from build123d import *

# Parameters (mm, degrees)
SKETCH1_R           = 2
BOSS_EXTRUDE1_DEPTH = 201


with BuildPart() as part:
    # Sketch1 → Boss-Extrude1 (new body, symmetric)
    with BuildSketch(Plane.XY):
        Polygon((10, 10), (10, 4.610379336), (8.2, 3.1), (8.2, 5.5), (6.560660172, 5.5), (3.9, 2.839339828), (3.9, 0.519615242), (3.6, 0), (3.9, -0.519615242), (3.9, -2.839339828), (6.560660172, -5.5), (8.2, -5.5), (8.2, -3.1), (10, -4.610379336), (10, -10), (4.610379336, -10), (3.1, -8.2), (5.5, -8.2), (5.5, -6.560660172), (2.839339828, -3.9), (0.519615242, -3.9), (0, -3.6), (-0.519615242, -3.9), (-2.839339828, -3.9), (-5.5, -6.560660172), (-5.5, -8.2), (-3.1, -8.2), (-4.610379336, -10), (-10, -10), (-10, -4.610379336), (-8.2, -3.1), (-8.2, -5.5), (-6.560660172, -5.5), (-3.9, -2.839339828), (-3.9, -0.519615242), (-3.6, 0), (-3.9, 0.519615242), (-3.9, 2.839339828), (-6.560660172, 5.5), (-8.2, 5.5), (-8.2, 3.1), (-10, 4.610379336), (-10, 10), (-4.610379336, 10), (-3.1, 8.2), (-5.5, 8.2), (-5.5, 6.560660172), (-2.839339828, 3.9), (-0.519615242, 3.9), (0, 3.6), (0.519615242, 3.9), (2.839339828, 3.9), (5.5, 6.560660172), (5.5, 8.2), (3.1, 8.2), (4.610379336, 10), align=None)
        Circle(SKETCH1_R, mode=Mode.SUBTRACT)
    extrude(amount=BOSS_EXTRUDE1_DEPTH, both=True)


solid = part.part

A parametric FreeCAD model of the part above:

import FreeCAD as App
import Part
import Sketcher
Q = App.Units.Quantity

doc = App.newDocument("Part")
body = doc.addObject("PartDesign::Body", "Body")

sketch1 = body.newObject("Sketcher::SketchObject", "Sketch")
sketch1.AttachmentSupport = (doc.getObject("XY_Plane"), [""])
sketch1.MapMode = "FlatFace"
sketch1.addGeometry([
    Part.LineSegment(App.Vector(10, 4.6, 0), App.Vector(10, 10, 0)),
    Part.LineSegment(App.Vector(10, 10, 0), App.Vector(4.6, 10, 0)),
    Part.LineSegment(App.Vector(4.6, 10, 0), App.Vector(3.1, 8.2, 0)),
    Part.LineSegment(App.Vector(3.1, 8.2, 0), App.Vector(5.5, 8.2, 0)),
    Part.LineSegment(App.Vector(5.5, 8.2, 0), App.Vector(5.5, 6.6, 0)),
    Part.LineSegment(App.Vector(5.5, 6.6, 0), App.Vector(2.8, 3.9, 0)),
    Part.LineSegment(App.Vector(2.8, 3.9, 0), App.Vector(0.5, 3.9, 0)),
    Part.LineSegment(App.Vector(0.5, 3.9, 0), App.Vector(0, 3.6, 0)),
    Part.LineSegment(App.Vector(0, 3.6, 0), App.Vector(-0.5, 3.9, 0)),
    Part.LineSegment(App.Vector(-0.5, 3.9, 0), App.Vector(-2.8, 3.9, 0)),
    Part.LineSegment(App.Vector(-2.8, 3.9, 0), App.Vector(-5.5, 6.6, 0)),
    Part.LineSegment(App.Vector(-5.5, 6.6, 0), App.Vector(-5.5, 8.2, 0)),
    Part.LineSegment(App.Vector(-5.5, 8.2, 0), App.Vector(-3.1, 8.2, 0)),
    Part.LineSegment(App.Vector(-3.1, 8.2, 0), App.Vector(-4.6, 10, 0)),
    Part.LineSegment(App.Vector(-4.6, 10, 0), App.Vector(-10, 10, 0)),
    Part.LineSegment(App.Vector(-10, 10, 0), App.Vector(-10, 4.6, 0)),
    Part.LineSegment(App.Vector(-10, 4.6, 0), App.Vector(-8.2, 3.1, 0)),
    Part.LineSegment(App.Vector(-8.2, 3.1, 0), App.Vector(-8.2, 5.5, 0)),
    Part.LineSegment(App.Vector(-8.2, 5.5, 0), App.Vector(-6.6, 5.5, 0)),
    Part.LineSegment(App.Vector(-6.6, 5.5, 0), App.Vector(-3.9, 2.8, 0)),
    Part.LineSegment(App.Vector(-3.9, 2.8, 0), App.Vector(-3.9, 0.5, 0)),
    Part.LineSegment(App.Vector(-3.9, 0.5, 0), App.Vector(-3.6, 0, 0)),
    Part.LineSegment(App.Vector(-3.6, 0, 0), App.Vector(-3.9, -0.5, 0)),
    Part.LineSegment(App.Vector(-3.9, -0.5, 0), App.Vector(-3.9, -2.8, 0)),
    Part.LineSegment(App.Vector(-3.9, -2.8, 0), App.Vector(-6.6, -5.5, 0)),
    Part.LineSegment(App.Vector(-6.6, -5.5, 0), App.Vector(-8.2, -5.5, 0)),
    Part.LineSegment(App.Vector(-8.2, -5.5, 0), App.Vector(-8.2, -3.1, 0)),
    Part.LineSegment(App.Vector(-8.2, -3.1, 0), App.Vector(-10, -4.6, 0)),
    Part.LineSegment(App.Vector(-10, -4.6, 0), App.Vector(-10, -10, 0)),
    Part.LineSegment(App.Vector(-10, -10, 0), App.Vector(-4.6, -10, 0)),
    Part.LineSegment(App.Vector(-4.6, -10, 0), App.Vector(-3.1, -8.2, 0)),
    Part.LineSegment(App.Vector(-3.1, -8.2, 0), App.Vector(-5.5, -8.2, 0)),
    Part.LineSegment(App.Vector(-5.5, -8.2, 0), App.Vector(-5.5, -6.6, 0)),
    Part.LineSegment(App.Vector(-5.5, -6.6, 0), App.Vector(-2.8, -3.9, 0)),
    Part.LineSegment(App.Vector(-2.8, -3.9, 0), App.Vector(-0.5, -3.9, 0)),
    Part.LineSegment(App.Vector(-0.5, -3.9, 0), App.Vector(0, -3.6, 0)),
    Part.LineSegment(App.Vector(0, -3.6, 0), App.Vector(0.5, -3.9, 0)),
    Part.LineSegment(App.Vector(0.5, -3.9, 0), App.Vector(2.8, -3.9, 0)),
    Part.LineSegment(App.Vector(2.8, -3.9, 0), App.Vector(5.5, -6.6, 0)),
    Part.LineSegment(App.Vector(5.5, -6.6, 0), App.Vector(5.5, -8.2, 0)),
    Part.LineSegment(App.Vector(5.5, -8.2, 0), App.Vector(3.1, -8.2, 0)),
    Part.LineSegment(App.Vector(3.1, -8.2, 0), App.Vector(4.6, -10, 0)),
    Part.LineSegment(App.Vector(4.6, -10, 0), App.Vector(10, -10, 0)),
    Part.LineSegment(App.Vector(10, -10, 0), App.Vector(10, -4.6, 0)),
    Part.LineSegment(App.Vector(10, -4.6, 0), App.Vector(8.2, -3.1, 0)),
    Part.LineSegment(App.Vector(8.2, -3.1, 0), App.Vector(8.2, -5.5, 0)),
    Part.LineSegment(App.Vector(8.2, -5.5, 0), App.Vector(6.6, -5.5, 0)),
    Part.LineSegment(App.Vector(6.6, -5.5, 0), App.Vector(3.9, -2.8, 0)),
    Part.LineSegment(App.Vector(3.9, -2.8, 0), App.Vector(3.9, -0.5, 0)),
    Part.LineSegment(App.Vector(3.9, -0.5, 0), App.Vector(3.6, 0, 0)),
    Part.LineSegment(App.Vector(3.6, 0, 0), App.Vector(3.9, 0.5, 0)),
    Part.LineSegment(App.Vector(3.9, 0.5, 0), App.Vector(3.9, 2.8, 0)),
    Part.LineSegment(App.Vector(3.9, 2.8, 0), App.Vector(6.6, 5.5, 0)),
    Part.LineSegment(App.Vector(6.6, 5.5, 0), App.Vector(8.2, 5.5, 0)),
    Part.LineSegment(App.Vector(8.2, 5.5, 0), App.Vector(8.2, 3.1, 0)),
    Part.LineSegment(App.Vector(8.2, 3.1, 0), App.Vector(10, 4.6, 0)),
    Part.Circle(App.Vector(0, 0, 0), App.Vector(0, 0, 1), 2),
], False)
sketch1.addConstraint([
    Sketcher.Constraint("Coincident", 0, 2, 1, 1),
    Sketcher.Constraint("Coincident", 1, 2, 2, 1),
    Sketcher.Constraint("Coincident", 2, 2, 3, 1),
    Sketcher.Constraint("Coincident", 3, 2, 4, 1),
    Sketcher.Constraint("Coincident", 4, 2, 5, 1),
    Sketcher.Constraint("Coincident", 5, 2, 6, 1),
    Sketcher.Constraint("Coincident", 6, 2, 7, 1),
    Sketcher.Constraint("Coincident", 7, 2, 8, 1),
    Sketcher.Constraint("Coincident", 8, 2, 9, 1),
    Sketcher.Constraint("Coincident", 9, 2, 10, 1),
    Sketcher.Constraint("Coincident", 10, 2, 11, 1),
    Sketcher.Constraint("Coincident", 11, 2, 12, 1),
    Sketcher.Constraint("Coincident", 12, 2, 13, 1),
    Sketcher.Constraint("Coincident", 13, 2, 14, 1),
    Sketcher.Constraint("Coincident", 14, 2, 15, 1),
    Sketcher.Constraint("Coincident", 15, 2, 16, 1),
    Sketcher.Constraint("Coincident", 16, 2, 17, 1),
    Sketcher.Constraint("Coincident", 17, 2, 18, 1),
    Sketcher.Constraint("Coincident", 18, 2, 19, 1),
    Sketcher.Constraint("Coincident", 19, 2, 20, 1),
    Sketcher.Constraint("Coincident", 20, 2, 21, 1),
    Sketcher.Constraint("Coincident", 21, 2, 22, 1),
    Sketcher.Constraint("Coincident", 22, 2, 23, 1),
    Sketcher.Constraint("Coincident", 23, 2, 24, 1),
    Sketcher.Constraint("Coincident", 24, 2, 25, 1),
    Sketcher.Constraint("Coincident", 25, 2, 26, 1),
    Sketcher.Constraint("Coincident", 26, 2, 27, 1),
    Sketcher.Constraint("Coincident", 27, 2, 28, 1),
    Sketcher.Constraint("Coincident", 28, 2, 29, 1),
    Sketcher.Constraint("Coincident", 29, 2, 30, 1),
    Sketcher.Constraint("Coincident", 30, 2, 31, 1),
    Sketcher.Constraint("Coincident", 31, 2, 32, 1),
    Sketcher.Constraint("Coincident", 32, 2, 33, 1),
    Sketcher.Constraint("Coincident", 33, 2, 34, 1),
    Sketcher.Constraint("Coincident", 34, 2, 35, 1),
    Sketcher.Constraint("Coincident", 35, 2, 36, 1),
    Sketcher.Constraint("Coincident", 36, 2, 37, 1),
    Sketcher.Constraint("Coincident", 37, 2, 38, 1),
    Sketcher.Constraint("Coincident", 38, 2, 39, 1),
    Sketcher.Constraint("Coincident", 39, 2, 40, 1),
    Sketcher.Constraint("Coincident", 40, 2, 41, 1),
    Sketcher.Constraint("Coincident", 41, 2, 42, 1),
    Sketcher.Constraint("Coincident", 42, 2, 43, 1),
    Sketcher.Constraint("Coincident", 43, 2, 44, 1),
    Sketcher.Constraint("Coincident", 44, 2, 45, 1),
    Sketcher.Constraint("Coincident", 45, 2, 46, 1),
    Sketcher.Constraint("Coincident", 46, 2, 47, 1),
    Sketcher.Constraint("Coincident", 47, 2, 48, 1),
    Sketcher.Constraint("Coincident", 48, 2, 49, 1),
    Sketcher.Constraint("Coincident", 49, 2, 50, 1),
    Sketcher.Constraint("Coincident", 50, 2, 51, 1),
    Sketcher.Constraint("Coincident", 51, 2, 52, 1),
    Sketcher.Constraint("Coincident", 52, 2, 53, 1),
    Sketcher.Constraint("Coincident", 53, 2, 54, 1),
    Sketcher.Constraint("Coincident", 54, 2, 55, 1),
    Sketcher.Constraint("Coincident", 55, 2, 0, 1),
    Sketcher.Constraint("Vertical", 0),
    Sketcher.Constraint("Horizontal", 1),
    Sketcher.Constraint("Horizontal", 3),
    Sketcher.Constraint("Vertical", 4),
    Sketcher.Constraint("Horizontal", 6),
    Sketcher.Constraint("Horizontal", 9),
    Sketcher.Constraint("Vertical", 11),
    Sketcher.Constraint("Horizontal", 12),
    Sketcher.Constraint("Horizontal", 14),
    Sketcher.Constraint("Vertical", 15),
    Sketcher.Constraint("Vertical", 17),
    Sketcher.Constraint("Horizontal", 18),
    Sketcher.Constraint("Vertical", 20),
    Sketcher.Constraint("Vertical", 23),
    Sketcher.Constraint("Horizontal", 25),
    Sketcher.Constraint("Vertical", 26),
    Sketcher.Constraint("Vertical", 28),
    Sketcher.Constraint("Horizontal", 29),
    Sketcher.Constraint("Horizontal", 31),
    Sketcher.Constraint("Vertical", 32),
    Sketcher.Constraint("Horizontal", 34),
    Sketcher.Constraint("Horizontal", 37),
    Sketcher.Constraint("Vertical", 39),
    Sketcher.Constraint("Horizontal", 40),
    Sketcher.Constraint("Horizontal", 42),
    Sketcher.Constraint("Vertical", 43),
    Sketcher.Constraint("Vertical", 45),
    Sketcher.Constraint("Horizontal", 46),
    Sketcher.Constraint("Vertical", 48),
    Sketcher.Constraint("Vertical", 51),
    Sketcher.Constraint("Horizontal", 53),
    Sketcher.Constraint("Vertical", 54),
    Sketcher.Constraint("Coincident", 56, 3, -1, 1),
    Sketcher.Constraint("Symmetric", 0, 2, 28, 2, -1, 1),
    Sketcher.Constraint("Symmetric", 2, 2, 30, 2, -1, 1),
    Sketcher.Constraint("Symmetric", 4, 2, 32, 2, -1, 1),
    Sketcher.Constraint("Symmetric", 5, 2, 33, 2, -1, 1),
    Sketcher.Constraint("Symmetric", 7, 2, 35, 2, -1, 1),
    Sketcher.Constraint("Symmetric", 8, 2, 36, 2, -1, 1),
    Sketcher.Constraint("Symmetric", 10, 2, 38, 2, -1, 1),
    Sketcher.Constraint("Symmetric", 12, 2, 40, 2, -1, 1),
    Sketcher.Constraint("Symmetric", 13, 2, 41, 2, -1, 1),
    Sketcher.Constraint("Symmetric", 15, 2, 43, 2, -1, 1),
    Sketcher.Constraint("Symmetric", 16, 2, 44, 2, -1, 1),
    Sketcher.Constraint("Symmetric", 18, 2, 46, 2, -1, 1),
    Sketcher.Constraint("Symmetric", 19, 2, 47, 2, -1, 1),
    Sketcher.Constraint("Symmetric", 21, 2, 49, 2, -1, 1),
    Sketcher.Constraint("Symmetric", 22, 2, 50, 2, -1, 1),
    Sketcher.Constraint("Symmetric", 24, 2, 52, 2, -1, 1),
    Sketcher.Constraint("Symmetric", 26, 2, 54, 2, -1, 1),
    Sketcher.Constraint("Symmetric", 6, 2, 8, 2, -2),
    Sketcher.Constraint("Symmetric", 4, 2, 10, 2, -2),
    Sketcher.Constraint("Symmetric", 2, 2, 12, 2, -2),
    Sketcher.Constraint("Symmetric", 1, 2, 13, 2, -2),
    Sketcher.Constraint("Symmetric", 27, 2, 43, 2, -2),
    Sketcher.Constraint("Symmetric", 26, 2, 44, 2, -2),
    Sketcher.Constraint("Symmetric", 24, 2, 46, 2, -2),
    Sketcher.Constraint("Symmetric", 23, 2, 47, 2, -2),
    Sketcher.Constraint("PointOnObject", 7, 2, -2),
    Sketcher.Constraint("PointOnObject", 21, 2, -1),
    Sketcher.Constraint("Perpendicular", 5, 10),
    Sketcher.Constraint("Perpendicular", 2, 16),
    Sketcher.Constraint("Parallel", 10, 19),
    Sketcher.Constraint("Perpendicular", 7, 21),
    Sketcher.Constraint("Perpendicular", 8, 22),
    Sketcher.Constraint("Perpendicular", 19, 24),
    Sketcher.Constraint("Perpendicular", 16, 30),
    Sketcher.Constraint("Perpendicular", 21, 35),
    Sketcher.Constraint("Perpendicular", 33, 38),
    Sketcher.Constraint("Perpendicular", 35, 49),
    Sketcher.Constraint("Perpendicular", 47, 52),
    Sketcher.Constraint("Perpendicular", 41, 55),
    Sketcher.Constraint("Equal", 42, 0),
    Sketcher.Constraint("Equal", 53, 4),
    Sketcher.Constraint("Equal", 40, 17),
    Sketcher.Constraint("Equal", 37, 20),
    Sketcher.Constraint("Equal", 13, 16),
    Sketcher.Constraint("Equal", 10, 19),
    Sketcher.Constraint("Equal", 8, 21),
    Sketcher.Constraint("Diameter", 56, 4.0),
    Sketcher.Constraint("Angle", 2, Q("-130 deg")),
    Sketcher.Constraint("Angle", 7, Q("-150 deg")),
    Sketcher.Constraint("DistanceX", 3, 1, 3, 2, 2.4),
    Sketcher.Constraint("DistanceX", -1, 1, 0, 2, 10.0),
    Sketcher.Constraint("Distance", 7, 0.6),
    Sketcher.Constraint("DistanceX", -1, 1, 2, 2, 3.1),
    Sketcher.Constraint("DistanceY", -1, 1, 2, 2, 8.2),
    Sketcher.Constraint("DistanceY", -1, 1, 5, 2, 3.9),
    Sketcher.Constraint("DistanceX", 18, 1, 18, 2, 1.63934),
])
pad1 = body.newObject("PartDesign::Pad", "Pad")
pad1.Profile = sketch1
pad1.Length = 402
pad1.Midplane = True

doc.recompute()
